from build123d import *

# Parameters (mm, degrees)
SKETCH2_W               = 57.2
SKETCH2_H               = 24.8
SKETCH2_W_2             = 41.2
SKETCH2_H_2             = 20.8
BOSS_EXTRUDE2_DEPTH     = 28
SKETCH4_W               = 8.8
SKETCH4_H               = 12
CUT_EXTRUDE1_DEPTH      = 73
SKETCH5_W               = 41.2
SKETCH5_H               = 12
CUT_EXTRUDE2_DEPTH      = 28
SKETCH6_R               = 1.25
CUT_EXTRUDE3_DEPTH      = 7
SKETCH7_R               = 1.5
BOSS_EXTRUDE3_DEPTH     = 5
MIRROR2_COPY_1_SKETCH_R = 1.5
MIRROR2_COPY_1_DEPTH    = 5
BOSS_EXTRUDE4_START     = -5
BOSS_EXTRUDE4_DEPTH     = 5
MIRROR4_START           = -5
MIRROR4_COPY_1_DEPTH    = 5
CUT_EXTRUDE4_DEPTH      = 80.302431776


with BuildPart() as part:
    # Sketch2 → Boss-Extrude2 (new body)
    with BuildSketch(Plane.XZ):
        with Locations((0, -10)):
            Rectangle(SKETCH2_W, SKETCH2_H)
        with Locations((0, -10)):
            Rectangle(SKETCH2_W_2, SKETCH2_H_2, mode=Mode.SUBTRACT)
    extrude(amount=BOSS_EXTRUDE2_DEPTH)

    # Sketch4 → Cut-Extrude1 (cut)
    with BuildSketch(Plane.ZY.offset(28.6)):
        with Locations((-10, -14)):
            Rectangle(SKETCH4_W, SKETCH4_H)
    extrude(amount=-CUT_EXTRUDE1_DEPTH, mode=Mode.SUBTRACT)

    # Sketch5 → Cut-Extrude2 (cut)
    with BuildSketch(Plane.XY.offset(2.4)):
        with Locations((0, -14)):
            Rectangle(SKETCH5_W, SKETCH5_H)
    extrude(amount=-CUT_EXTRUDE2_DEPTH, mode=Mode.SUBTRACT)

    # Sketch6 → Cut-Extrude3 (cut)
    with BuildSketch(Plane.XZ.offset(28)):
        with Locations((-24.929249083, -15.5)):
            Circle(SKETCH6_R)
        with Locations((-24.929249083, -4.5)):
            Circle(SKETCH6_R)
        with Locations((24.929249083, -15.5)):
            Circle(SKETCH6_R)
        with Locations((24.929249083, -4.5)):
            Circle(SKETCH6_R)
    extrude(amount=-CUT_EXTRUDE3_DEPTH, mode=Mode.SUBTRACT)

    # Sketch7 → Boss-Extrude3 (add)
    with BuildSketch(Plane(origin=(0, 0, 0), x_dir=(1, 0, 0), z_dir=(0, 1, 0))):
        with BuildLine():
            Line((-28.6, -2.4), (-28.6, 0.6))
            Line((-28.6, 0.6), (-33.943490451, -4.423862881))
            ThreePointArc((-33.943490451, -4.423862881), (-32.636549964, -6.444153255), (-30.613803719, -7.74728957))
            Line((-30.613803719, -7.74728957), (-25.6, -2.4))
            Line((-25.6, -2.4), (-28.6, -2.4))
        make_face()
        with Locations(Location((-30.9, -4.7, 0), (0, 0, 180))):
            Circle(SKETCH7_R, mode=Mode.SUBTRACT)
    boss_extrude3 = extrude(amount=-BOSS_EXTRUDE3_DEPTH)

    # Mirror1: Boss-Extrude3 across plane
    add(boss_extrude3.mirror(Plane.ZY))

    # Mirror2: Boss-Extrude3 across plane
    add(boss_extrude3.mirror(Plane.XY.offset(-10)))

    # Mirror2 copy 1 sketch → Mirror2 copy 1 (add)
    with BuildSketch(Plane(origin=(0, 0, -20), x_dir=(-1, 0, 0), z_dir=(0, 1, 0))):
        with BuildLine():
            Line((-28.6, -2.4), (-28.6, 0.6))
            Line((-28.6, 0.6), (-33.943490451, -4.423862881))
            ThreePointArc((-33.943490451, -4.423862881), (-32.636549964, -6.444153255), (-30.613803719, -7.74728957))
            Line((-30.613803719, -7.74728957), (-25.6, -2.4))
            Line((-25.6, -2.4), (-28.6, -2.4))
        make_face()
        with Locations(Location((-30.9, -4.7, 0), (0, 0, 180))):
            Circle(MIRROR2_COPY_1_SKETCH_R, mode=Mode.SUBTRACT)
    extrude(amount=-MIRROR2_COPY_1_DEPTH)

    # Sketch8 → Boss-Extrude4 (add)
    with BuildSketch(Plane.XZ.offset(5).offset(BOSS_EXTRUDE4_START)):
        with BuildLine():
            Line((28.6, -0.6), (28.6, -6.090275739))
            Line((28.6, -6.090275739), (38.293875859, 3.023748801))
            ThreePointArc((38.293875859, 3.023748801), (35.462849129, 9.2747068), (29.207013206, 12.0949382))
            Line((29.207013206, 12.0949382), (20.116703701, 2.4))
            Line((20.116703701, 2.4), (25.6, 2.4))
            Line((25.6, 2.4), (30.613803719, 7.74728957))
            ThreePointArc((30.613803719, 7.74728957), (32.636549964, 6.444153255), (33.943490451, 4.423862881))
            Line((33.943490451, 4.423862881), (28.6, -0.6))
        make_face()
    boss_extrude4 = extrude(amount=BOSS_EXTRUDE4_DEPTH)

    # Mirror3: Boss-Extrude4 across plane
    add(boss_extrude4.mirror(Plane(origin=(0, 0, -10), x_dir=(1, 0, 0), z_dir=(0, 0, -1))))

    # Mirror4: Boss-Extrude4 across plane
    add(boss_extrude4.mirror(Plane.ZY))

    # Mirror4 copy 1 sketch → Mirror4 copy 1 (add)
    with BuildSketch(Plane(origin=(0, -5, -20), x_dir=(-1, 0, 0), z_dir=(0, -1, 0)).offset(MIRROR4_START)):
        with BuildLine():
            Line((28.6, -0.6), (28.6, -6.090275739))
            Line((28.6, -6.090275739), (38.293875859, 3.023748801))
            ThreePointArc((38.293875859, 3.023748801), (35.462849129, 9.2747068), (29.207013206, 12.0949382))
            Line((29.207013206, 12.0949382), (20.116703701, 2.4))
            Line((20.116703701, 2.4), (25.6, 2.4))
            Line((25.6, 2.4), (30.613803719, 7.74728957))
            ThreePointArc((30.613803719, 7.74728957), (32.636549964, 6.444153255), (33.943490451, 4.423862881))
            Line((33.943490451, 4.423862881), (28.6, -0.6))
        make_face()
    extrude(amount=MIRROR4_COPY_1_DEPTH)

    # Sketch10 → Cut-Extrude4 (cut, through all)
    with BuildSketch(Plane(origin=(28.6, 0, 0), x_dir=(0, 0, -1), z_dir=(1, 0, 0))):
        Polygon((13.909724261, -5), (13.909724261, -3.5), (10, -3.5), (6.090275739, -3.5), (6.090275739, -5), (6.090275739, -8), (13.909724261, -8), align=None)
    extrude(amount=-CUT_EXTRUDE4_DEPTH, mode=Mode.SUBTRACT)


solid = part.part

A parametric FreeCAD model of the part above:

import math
import FreeCAD as App
import Part
import Sketcher

V = App.Vector

doc = App.newDocument("Part")
body = doc.addObject("PartDesign::Body", "Body")

sketch1 = body.newObject("Sketcher::SketchObject", "Sketch")
sketch1.AttachmentSupport = (doc.getObject("XZ_Plane"), [""])
sketch1.MapMode = "FlatFace"
sketch1.addGeometry([
    Part.LineSegment(V(-28.6, 2.4, 0), V(-28.6, -22.4, 0)),
    Part.LineSegment(V(-28.6, -22.4, 0), V(28.6, -22.4, 0)),
    Part.LineSegment(V(28.6, -22.4, 0), V(28.6, 2.4, 0)),
    Part.LineSegment(V(28.6, 2.4, 0), V(-28.6, 2.4, 0)),
    Part.LineSegment(V(20.6, -20.4, 0), V(-20.6, -20.4, 0)),
    Part.LineSegment(V(-20.6, -20.4, 0), V(-20.6, 0.4, 0)),
    Part.LineSegment(V(-20.6, 0.4, 0), V(20.6, 0.4, 0)),
    Part.LineSegment(V(20.6, 0.4, 0), V(20.6, -20.4, 0)),
], False)
sketch1.addConstraint([
    Sketcher.Constraint("Coincident", 0, 2, 1, 1),
    Sketcher.Constraint("Coincident", 1, 2, 2, 1),
    Sketcher.Constraint("Coincident", 2, 2, 3, 1),
    Sketcher.Constraint("Coincident", 3, 2, 0, 1),
    Sketcher.Constraint("Coincident", 4, 2, 5, 1),
    Sketcher.Constraint("Coincident", 5, 2, 6, 1),
    Sketcher.Constraint("Coincident", 6, 2, 7, 1),
    Sketcher.Constraint("Coincident", 7, 2, 4, 1),
    Sketcher.Constraint("Vertical", 0),
    Sketcher.Constraint("Horizontal", 1),
    Sketcher.Constraint("Vertical", 2),
    Sketcher.Constraint("Horizontal", 3),
    Sketcher.Constraint("Horizontal", 4),
    Sketcher.Constraint("Vertical", 5),
    Sketcher.Constraint("Horizontal", 6),
    Sketcher.Constraint("Vertical", 7),
    Sketcher.Constraint("DistanceX", 1, 1, 1, 2, 57.2),
    Sketcher.Constraint("DistanceX", 4, 2, 4, 1, 41.2),
    Sketcher.Constraint("DistanceY", 0, 2, 0, 1, 24.8),
    Sketcher.Constraint("DistanceY", 5, 1, 5, 2, 20.8),
    Sketcher.Constraint("DistanceX", 0, 2, 4, 2, 8.0),
    Sketcher.Constraint("DistanceY", 0, 2, 4, 2, 2.0),
    Sketcher.Constraint("DistanceX", 0, 2, -1, 1, 28.6),
    Sketcher.Constraint("DistanceY", 0, 2, -1, 1, 22.4),
])
pad1 = body.newObject("PartDesign::Pad", "Pad")
pad1.Profile = sketch1
pad1.Length = 28

sketch2 = body.newObject("Sketcher::SketchObject", "Sketch001")
sketch2.AttachmentSupport = (doc.getObject("YZ_Plane"), [""])
sketch2.MapMode = "FlatFace"
sketch2.AttachmentOffset = App.Placement(V(0, 0, -28.6), App.Rotation())
sketch2.addGeometry([
    Part.LineSegment(V(-8, -14.4, 0), V(-20, -14.4, 0)),
    Part.LineSegment(V(-20, -14.4, 0), V(-20, -5.6, 0)),
    Part.LineSegment(V(-20, -5.6, 0), V(-8, -5.6, 0)),
    Part.LineSegment(V(-8, -5.6, 0), V(-8, -14.4, 0)),
], False)
sketch2.addConstraint([
    Sketcher.Constraint("Coincident", 0, 2, 1, 1),
    Sketcher.Constraint("Coincident", 1, 2, 2, 1),
    Sketcher.Constraint("Coincident", 2, 2, 3, 1),
    Sketcher.Constraint("Coincident", 3, 2, 0, 1),
    Sketcher.Constraint("Horizontal", 0),
    Sketcher.Constraint("Vertical", 1),
    Sketcher.Constraint("Horizontal", 2),
    Sketcher.Constraint("Vertical", 3),
    Sketcher.Constraint("DistanceX", 0, 2, 0, 1, 12.0),
    Sketcher.Constraint("DistanceY", 1, 1, 1, 2, 8.8),
    Sketcher.Constraint("DistanceX", 0, 2, -1, 1, 20.0),
    Sketcher.Constraint("DistanceY", 0, 2, -1, 1, 14.4),
])
pocket1 = body.newObject("PartDesign::Pocket", "Pocket")
pocket1.Profile = sketch2
pocket1.Length = 73
pocket1.Reversed = True

sketch3 = body.newObject("Sketcher::SketchObject", "Sketch002")
sketch3.AttachmentSupport = (doc.getObject("XY_Plane"), [""])
sketch3.MapMode = "FlatFace"
sketch3.AttachmentOffset = App.Placement(V(0, 0, 2.4), App.Rotation())
sketch3.addGeometry([
    Part.LineSegment(V(-20.6, -8, 0), V(-20.6, -20, 0)),
    Part.LineSegment(V(-20.6, -20, 0), V(20.6, -20, 0)),
    Part.LineSegment(V(20.6, -20, 0), V(20.6, -8, 0)),
    Part.LineSegment(V(20.6, -8, 0), V(-20.6, -8, 0)),
], False)
sketch3.addConstraint([
    Sketcher.Constraint("Coincident", 0, 2, 1, 1),
    Sketcher.Constraint("Coincident", 1, 2, 2, 1),
    Sketcher.Constraint("Coincident", 2, 2, 3, 1),
    Sketcher.Constraint("Coincident", 3, 2, 0, 1),
    Sketcher.Constraint("Vertical", 0),
    Sketcher.Constraint("Horizontal", 1),
    Sketcher.Constraint("Vertical", 2),
    Sketcher.Constraint("Horizontal", 3),
    Sketcher.Constraint("DistanceY", 0, 2, 0, 1, 12.0),
    Sketcher.Constraint("DistanceX", 1, 1, 1, 2, 41.2),
    Sketcher.Constraint("DistanceY", 0, 2, -1, 1, 20.0),
    Sketcher.Constraint("DistanceX", 0, 2, -1, 1, 20.6),
])
pocket2 = body.newObject("PartDesign::Pocket", "Pocket001")
pocket2.Profile = sketch3
pocket2.Length = 28

sketch4 = body.newObject("Sketcher::SketchObject", "Sketch003")
sketch4.AttachmentSupport = (doc.getObject("XZ_Plane"), [""])
sketch4.MapMode = "FlatFace"
sketch4.AttachmentOffset = App.Placement(V(0, 0, 28), App.Rotation())
sketch4.addGeometry([
    Part.Circle(V(-24.929249, -15.5, 0), V(0, 0, 1), 1.25),
    Part.Circle(V(-24.929249, -4.5, 0), V(0, 0, 1), 1.25),
    Part.Circle(V(24.929249, -15.5, 0), V(0, 0, 1), 1.25),
    Part.Circle(V(24.929249, -4.5, 0), V(0, 0, 1), 1.25),
], False)
sketch4.addConstraint([
    Sketcher.Constraint("Equal", 0, 1),
    Sketcher.Constraint("Equal", 1, 2),
    Sketcher.Constraint("Equal", 2, 3),
    Sketcher.Constraint("Symmetric", 0, 3, 2, 3, -2),
    Sketcher.Constraint("Symmetric", 1, 3, 3, 3, -2),
    Sketcher.Constraint("Vertical", 0, 3, 1, 3),
    Sketcher.Constraint("Diameter", 0, 2.5),
    Sketcher.Constraint("DistanceY", 0, 3, 1, 3, 11.0),
    Sketcher.Constraint("DistanceY", 0, 3, -1, 1, 15.5),
    Sketcher.Constraint("DistanceX", 0, 3, 2, 3, 49.858498),
])
pocket3 = body.newObject("PartDesign::Pocket", "Pocket002")
pocket3.Profile = sketch4
pocket3.Length = 7

sketch5 = body.newObject("Sketcher::SketchObject", "Sketch004")
sketch5.AttachmentSupport = (doc.getObject("XZ_Plane"), [""])
sketch5.MapMode = "FlatFace"
sketch5.addGeometry([
    Part.LineSegment(V(-28.6, 2.4, 0), V(-28.6, -0.6, 0)),
    Part.LineSegment(V(-28.6, -0.6, 0), V(-33.94349, 4.423863, 0)),
    Part.ArcOfCircle(Part.Circle(V(-28.6, 2.4, 0), V(0, 0, 1), 5.713923), math.radians(110.63651), math.radians(159.255669)),
    Part.LineSegment(V(-30.613804, 7.74729, 0), V(-25.6, 2.4, 0)),
    Part.LineSegment(V(-25.6, 2.4, 0), V(-28.6, 2.4, 0)),
    Part.Circle(V(-30.9, 4.7, 0), V(0, 0, 1), 1.5),
], False)
sketch5.addConstraint([
    Sketcher.Constraint("Coincident", 0, 2, 1, 1),
    Sketcher.Constraint("Coincident", 1, 2, 2, 2),
    Sketcher.Constraint("Coincident", 2, 1, 3, 1),
    Sketcher.Constraint("Coincident", 3, 2, 4, 1),
    Sketcher.Constraint("Coincident", 4, 2, 0, 1),
    Sketcher.Constraint("Vertical", 0),
    Sketcher.Constraint("Horizontal", 4),
    Sketcher.Constraint("Coincident", 4, 2, 2, 3),
    Sketcher.Constraint("Equal", 4, 0),
    Sketcher.Constraint("Diameter", 5, 3.0),
    Sketcher.Constraint("DistanceX", 4, 2, 4, 1, 3.0),
    Sketcher.Constraint("DistanceX", 2, 3, -1, 1, 28.6),
    Sketcher.Constraint("DistanceY", -1, 1, 2, 3, 2.4),
    Sketcher.Constraint("DistanceX", 5, 3, -1, 1, 30.9),
    Sketcher.Constraint("DistanceY", -1, 1, 5, 3, 4.7),
    Sketcher.Constraint("Radius", 2, 5.713923),
    Sketcher.Constraint("Distance", 1, 7.334309),
    Sketcher.Constraint("DistanceY", -1, 1, 2, 1, 7.74729),
])
pad2 = body.newObject("PartDesign::Pad", "Pad001")
pad2.Profile = sketch5
pad2.Length = 5
doc.recompute()

mirrored = body.newObject("PartDesign::Mirrored", "Mirrored")
mirrored.Originals = [pad2]
mirrored.MirrorPlane = (doc.getObject("YZ_Plane"), [""])
body.Tip = mirrored
doc.recompute()

datumplane = body.newObject("PartDesign::Plane", "DatumPlane")
datumplane.AttachmentSupport = (doc.getObject("XY_Plane"), [""])
datumplane.MapMode = "FlatFace"
datumplane.AttachmentOffset = App.Placement(V(0, 0, -10), App.Rotation())
mirrored2 = body.newObject("PartDesign::Mirrored", "Mirrored001")
mirrored2.Originals = [pad2]
mirrored2.MirrorPlane = (datumplane, [""])
body.Tip = mirrored2

sketch6 = body.newObject("Sketcher::SketchObject", "Sketch005")
sketch6.AttachmentSupport = (doc.getObject("XZ_Plane"), [""])
sketch6.MapMode = "FlatFace"
sketch6.addGeometry([
    Part.LineSegment(V(28.6, -22.4, 0), V(28.6, -19.4, 0)),
    Part.LineSegment(V(28.6, -19.4, 0), V(33.94349, -24.423863, 0)),
    Part.ArcOfCircle(Part.Circle(V(28.6, -22.4, 0), V(0, 0, 1), 5.713923), math.radians(-69.36349), math.radians(-20.744331)),
    Part.LineSegment(V(30.613804, -27.74729, 0), V(25.6, -22.4, 0)),
    Part.LineSegment(V(25.6, -22.4, 0), V(28.6, -22.4, 0)),
    Part.Circle(V(30.9, -24.7, 0), V(0, 0, 1), 1.5),
], False)
sketch6.addConstraint([
    Sketcher.Constraint("Coincident", 0, 2, 1, 1),
    Sketcher.Constraint("Coincident", 1, 2, 2, 2),
    Sketcher.Constraint("Coincident", 2, 1, 3, 1),
    Sketcher.Constraint("Coincident", 3, 2, 4, 1),
    Sketcher.Constraint("Coincident", 4, 2, 0, 1),
    Sketcher.Constraint("Vertical", 0),
    Sketcher.Constraint("Horizontal", 4),
    Sketcher.Constraint("Coincident", 4, 2, 2, 3),
    Sketcher.Constraint("Equal", 4, 0),
    Sketcher.Constraint("Diameter", 5, 3.0),
    Sketcher.Constraint("DistanceX", 4, 1, 4, 2, 3.0),
    Sketcher.Constraint("DistanceX", -1, 1, 2, 3, 28.6),
    Sketcher.Constraint("DistanceY", 2, 3, -1, 1, 22.4),
    Sketcher.Constraint("DistanceX", -1, 1, 5, 3, 30.9),
    Sketcher.Constraint("DistanceY", 5, 3, -1, 1, 24.7),
    Sketcher.Constraint("Radius", 2, 5.713923),
    Sketcher.Constraint("Distance", 1, 7.334309),
    Sketcher.Constraint("DistanceY", 2, 1, -1, 1, 27.74729),
])
pad3 = body.newObject("PartDesign::Pad", "Pad002")
pad3.Profile = sketch6
pad3.Length = 5

sketch7 = body.newObject("Sketcher::SketchObject", "Sketch006")
sketch7.AttachmentSupport = (doc.getObject("XZ_Plane"), [""])
sketch7.MapMode = "FlatFace"
sketch7.addGeometry([
    Part.LineSegment(V(28.6, -0.6, 0), V(28.6, -6.090276, 0)),
    Part.LineSegment(V(28.6, -6.090276, 0), V(38.293876, 3.023749, 0)),
    Part.ArcOfCircle(Part.Circle(V(28.6, 2.4, 0), V(0, 0, 1), 9.713923), math.radians(3.6816), math.radians(86.41731)),
    Part.LineSegment(V(29.207013, 12.094938, 0), V(20.116704, 2.4, 0)),
    Part.LineSegment(V(20.116704, 2.4, 0), V(25.6, 2.4, 0)),
    Part.LineSegment(V(25.6, 2.4, 0), V(30.613804, 7.74729, 0)),
    Part.ArcOfCircle(Part.Circle(V(28.6, 2.4, 0), V(0, 0, 1), 5.713923), math.radians(20.744331), math.radians(69.36349)),
    Part.LineSegment(V(33.94349, 4.423863, 0), V(28.6, -0.6, 0)),
], False)
sketch7.addConstraint([
    Sketcher.Constraint("Coincident", 0, 2, 1, 1),
    Sketcher.Constraint("Coincident", 1, 2, 2, 1),
    Sketcher.Constraint("Coincident", 2, 2, 3, 1),
    Sketcher.Constraint("Coincident", 3, 2, 4, 1),
    Sketcher.Constraint("Coincident", 4, 2, 5, 1),
    Sketcher.Constraint("Coincident", 5, 2, 6, 2),
    Sketcher.Constraint("Coincident", 6, 1, 7, 1),
    Sketcher.Constraint("Coincident", 7, 2, 0, 1),
    Sketcher.Constraint("Vertical", 0),
    Sketcher.Constraint("Horizontal", 4),
    Sketcher.Constraint("Coincident", 6, 3, 2, 3),
    Sketcher.Constraint("Parallel", 3, 5),
    Sketcher.Constraint("Parallel", 1, 7),
    Sketcher.Constraint("Horizontal", 6, 3, 3, 2),
    Sketcher.Constraint("Vertical", 6, 3, 0, 2),
    Sketcher.Constraint("DistanceX", 4, 2, 6, 3, 3.0),
    Sketcher.Constraint("DistanceY", 7, 2, 6, 3, 3.0),
    Sketcher.Constraint("DistanceX", -1, 1, 2, 3, 28.6),
    Sketcher.Constraint("DistanceY", -1, 1, 2, 3, 2.4),
    Sketcher.Constraint("Radius", 2, 9.713923),
    Sketcher.Constraint("Radius", 6, 5.713923),
    Sketcher.Constraint("Distance", 7, 7.334309),
    Sketcher.Constraint("DistanceX", 4, 1, 4, 2, 5.483296),
    Sketcher.Constraint("DistanceY", 0, 2, 0, 1, 5.490276),
    Sketcher.Constraint("DistanceY", -1, 1, 2, 2, 12.094938),
])
pad4 = body.newObject("PartDesign::Pad", "Pad003")
pad4.Profile = sketch7
pad4.Length = 5
doc.recompute()

datumplane2 = body.newObject("PartDesign::Plane", "DatumPlane001")
datumplane2.AttachmentSupport = (doc.getObject("XY_Plane"), [""])
datumplane2.MapMode = "FlatFace"
datumplane2.AttachmentOffset = App.Placement(V(0, 0, -10), App.Rotation())
mirrored3 = body.newObject("PartDesign::Mirrored", "Mirrored002")
mirrored3.Originals = [pad4]
mirrored3.MirrorPlane = (datumplane2, [""])
body.Tip = mirrored3
doc.recompute()

mirrored4 = body.newObject("PartDesign::Mirrored", "Mirrored003")
mirrored4.Originals = [pad4]
mirrored4.MirrorPlane = (doc.getObject("YZ_Plane"), [""])
body.Tip = mirrored4

sketch8 = body.newObject("Sketcher::SketchObject", "Sketch007")
sketch8.AttachmentSupport = (doc.getObject("XZ_Plane"), [""])
sketch8.MapMode = "FlatFace"
sketch8.addGeometry([
    Part.LineSegment(V(-28.6, -19.4, 0), V(-28.6, -13.909724, 0)),
    Part.LineSegment(V(-28.6, -13.909724, 0), V(-38.293876, -23.023749, 0)),
    Part.ArcOfCircle(Part.Circle(V(-28.6, -22.4, 0), V(0, 0, 1), 9.713923), math.radians(-176.3184), math.radians(-93.58269)),
    Part.LineSegment(V(-29.207013, -32.094938, 0), V(-20.116704, -22.4, 0)),
    Part.LineSegment(V(-20.116704, -22.4, 0), V(-25.6, -22.4, 0)),
    Part.LineSegment(V(-25.6, -22.4, 0), V(-30.613804, -27.74729, 0)),
    Part.ArcOfCircle(Part.Circle(V(-28.6, -22.4, 0), V(0, 0, 1), 5.713923), math.radians(-159.255669), math.radians(-110.63651)),
    Part.LineSegment(V(-33.94349, -24.423863, 0), V(-28.6, -19.4, 0)),
], False)
sketch8.addConstraint([
    Sketcher.Constraint("Coincident", 0, 2, 1, 1),
    Sketcher.Constraint("Coincident", 1, 2, 2, 1),
    Sketcher.Constraint("Coincident", 2, 2, 3, 1),
    Sketcher.Constraint("Coincident", 3, 2, 4, 1),
    Sketcher.Constraint("Coincident", 4, 2, 5, 1),
    Sketcher.Constraint("Coincident", 5, 2, 6, 2),
    Sketcher.Constraint("Coincident", 6, 1, 7, 1),
    Sketcher.Constraint("Coincident", 7, 2, 0, 1),
    Sketcher.Constraint("Vertical", 0),
    Sketcher.Constraint("Horizontal", 4),
    Sketcher.Constraint("Coincident", 6, 3, 2, 3),
    Sketcher.Constraint("Parallel", 3, 5),
    Sketcher.Constraint("Parallel", 1, 7),
    Sketcher.Constraint("Horizontal", 6, 3, 3, 2),
    Sketcher.Constraint("Vertical", 6, 3, 0, 2),
    Sketcher.Constraint("DistanceX", 6, 3, 4, 2, 3.0),
    Sketcher.Constraint("DistanceY", 6, 3, 7, 2, 3.0),
    Sketcher.Constraint("DistanceX", 2, 3, -1, 1, 28.6),
    Sketcher.Constraint("DistanceY", 2, 3, -1, 1, 22.4),
    Sketcher.Constraint("Radius", 2, 9.713923),
    Sketcher.Constraint("Radius", 6, 5.713923),
    Sketcher.Constraint("Distance", 7, 7.334309),
    Sketcher.Constraint("DistanceX", 4, 2, 4, 1, 5.483296),
    Sketcher.Constraint("DistanceY", 0, 1, 0, 2, 5.490276),
    Sketcher.Constraint("DistanceY", 2, 2, -1, 1, 32.094938),
])
pad5 = body.newObject("PartDesign::Pad", "Pad004")
pad5.Profile = sketch8
pad5.Length = 5

sketch9 = body.newObject("Sketcher::SketchObject", "Sketch008")
sketch9.AttachmentSupport = (doc.getObject("YZ_Plane"), [""])
sketch9.MapMode = "FlatFace"
sketch9.AttachmentOffset = App.Placement(V(0, 0, 28.6), App.Rotation())
sketch9.addGeometry([
    Part.LineSegment(V(-3.5, -13.909724, 0), V(-3.5, -6.090276, 0)),
    Part.LineSegment(V(-3.5, -6.090276, 0), V(-8, -6.090276, 0)),
    Part.LineSegment(V(-8, -6.090276, 0), V(-8, -13.909724, 0)),
    Part.LineSegment(V(-8, -13.909724, 0), V(-3.5, -13.909724, 0)),
], False)
sketch9.addConstraint([
    Sketcher.Constraint("Coincident", 0, 2, 1, 1),
    Sketcher.Constraint("Coincident", 1, 2, 2, 1),
    Sketcher.Constraint("Coincident", 2, 2, 3, 1),
    Sketcher.Constraint("Coincident", 3, 2, 0, 1),
    Sketcher.Constraint("Vertical", 0),
    Sketcher.Constraint("Horizontal", 1),
    Sketcher.Constraint("Vertical", 2),
    Sketcher.Constraint("Horizontal", 3),
    Sketcher.Constraint("DistanceX", 1, 2, 1, 1, 4.5),
    Sketcher.Constraint("DistanceX", 1, 2, -1, 1, 8.0),
    Sketcher.Constraint("DistanceY", 0, 1, 0, 2, 7.819449),
    Sketcher.Constraint("DistanceY", 0, 2, -1, 1, 6.090276),
])
pocket4 = body.newObject("PartDesign::Pocket", "Pocket003")
pocket4.Profile = sketch9
pocket4.Type = "ThroughAll"

doc.recompute()
